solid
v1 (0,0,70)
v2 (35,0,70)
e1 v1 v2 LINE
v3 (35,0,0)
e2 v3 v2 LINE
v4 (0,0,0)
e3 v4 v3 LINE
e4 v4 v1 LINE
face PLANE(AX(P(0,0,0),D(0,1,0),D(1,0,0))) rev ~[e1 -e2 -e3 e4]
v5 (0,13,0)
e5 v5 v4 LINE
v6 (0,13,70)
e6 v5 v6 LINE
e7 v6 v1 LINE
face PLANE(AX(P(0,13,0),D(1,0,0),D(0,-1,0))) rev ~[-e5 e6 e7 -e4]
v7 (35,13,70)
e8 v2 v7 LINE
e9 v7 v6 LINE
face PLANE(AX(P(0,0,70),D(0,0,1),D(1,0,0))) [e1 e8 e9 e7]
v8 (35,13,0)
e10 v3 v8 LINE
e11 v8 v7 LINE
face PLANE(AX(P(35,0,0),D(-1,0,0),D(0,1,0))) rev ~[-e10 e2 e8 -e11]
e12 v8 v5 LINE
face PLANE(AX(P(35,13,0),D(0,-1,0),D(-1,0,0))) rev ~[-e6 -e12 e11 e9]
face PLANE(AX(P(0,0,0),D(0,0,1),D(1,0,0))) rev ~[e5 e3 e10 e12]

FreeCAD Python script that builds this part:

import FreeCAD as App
import Part
import Sketcher
from FreeCAD import Vector
Q = App.Units.Quantity

doc = App.newDocument("Part")
body = doc.addObject("PartDesign::Body", "Body")

# Sketch on XY plane
sketch1 = body.newObject("Sketcher::SketchObject", "Sketch")
sketch1.AttachmentSupport = (doc.getObject("XY_Plane"), [""])
sketch1.MapMode = "FlatFace"
sketch1.addGeometry([
    Part.LineSegment(Vector(0, 13, 0), Vector(0, 0, 0)),
    Part.LineSegment(Vector(0, 0, 0), Vector(35, 0, 0)),
    Part.LineSegment(Vector(35, 0, 0), Vector(35, 13, 0)),
    Part.LineSegment(Vector(35, 13, 0), Vector(0, 13, 0)),
], False)
sketch1.addConstraint([
    Sketcher.Constraint("Coincident", 0, 2, 1, 1),
    Sketcher.Constraint("Coincident", 1, 2, 2, 1),
    Sketcher.Constraint("Coincident", 2, 2, 3, 1),
    Sketcher.Constraint("Coincident", 3, 2, 0, 1),
    Sketcher.Constraint("Vertical", 0),
    Sketcher.Constraint("Horizontal", 1),
    Sketcher.Constraint("Vertical", 2),
    Sketcher.Constraint("Horizontal", 3),
    Sketcher.Constraint("Coincident", 0, 2, -1, 1),
    Sketcher.Constraint("DistanceX", 1, 1, 1, 2, Q("35 mm")),
    Sketcher.Constraint("DistanceY", 0, 2, 0, 1, Q("13 mm")),
])
pad1 = body.newObject("PartDesign::Pad", "Pad")
pad1.Profile = sketch1
pad1.Length = 70

doc.recompute()
